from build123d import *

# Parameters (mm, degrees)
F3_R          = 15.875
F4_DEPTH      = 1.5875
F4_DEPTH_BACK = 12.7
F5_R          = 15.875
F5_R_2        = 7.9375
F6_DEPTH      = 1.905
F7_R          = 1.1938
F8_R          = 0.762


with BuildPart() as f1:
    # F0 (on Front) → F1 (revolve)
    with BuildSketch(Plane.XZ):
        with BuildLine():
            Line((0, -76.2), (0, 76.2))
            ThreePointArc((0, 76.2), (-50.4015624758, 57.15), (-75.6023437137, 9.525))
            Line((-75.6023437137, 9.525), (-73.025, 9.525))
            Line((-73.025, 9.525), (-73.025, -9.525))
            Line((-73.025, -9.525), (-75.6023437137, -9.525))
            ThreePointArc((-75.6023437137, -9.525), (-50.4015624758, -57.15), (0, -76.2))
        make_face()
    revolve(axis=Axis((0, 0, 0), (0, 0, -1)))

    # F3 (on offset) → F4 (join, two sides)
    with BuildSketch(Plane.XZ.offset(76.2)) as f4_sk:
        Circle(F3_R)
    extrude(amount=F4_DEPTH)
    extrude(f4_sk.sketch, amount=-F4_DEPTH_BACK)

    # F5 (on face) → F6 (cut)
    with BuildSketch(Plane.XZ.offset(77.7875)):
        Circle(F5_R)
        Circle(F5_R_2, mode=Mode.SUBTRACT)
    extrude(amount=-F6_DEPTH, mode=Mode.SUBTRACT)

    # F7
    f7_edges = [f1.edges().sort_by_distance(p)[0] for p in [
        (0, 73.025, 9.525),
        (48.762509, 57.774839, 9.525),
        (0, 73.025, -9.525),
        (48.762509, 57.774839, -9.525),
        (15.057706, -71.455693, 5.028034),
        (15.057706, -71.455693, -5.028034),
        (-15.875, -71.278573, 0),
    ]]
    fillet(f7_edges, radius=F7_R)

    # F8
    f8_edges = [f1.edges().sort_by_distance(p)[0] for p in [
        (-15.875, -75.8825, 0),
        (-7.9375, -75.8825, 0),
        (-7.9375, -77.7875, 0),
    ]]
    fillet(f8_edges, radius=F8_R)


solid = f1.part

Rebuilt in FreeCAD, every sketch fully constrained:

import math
import FreeCAD as App
import Part
import Sketcher
from FreeCAD import Vector
Q = App.Units.Quantity


def edges_at(feature, points):
    """Names of the edges that pass closest to the given points."""
    edges = feature.Shape.Edges
    near = lambda p: min(range(len(edges)), key=lambda i: edges[i].distToShape(Part.Vertex(*p))[0])
    return sorted({f"Edge{near(p) + 1}" for p in points})

doc = App.newDocument("Part")
body = doc.addObject("PartDesign::Body", "Body")

# Sketch on XZ plane
sketch1 = doc.addObject("Sketcher::SketchObject", "Sketch")
body.addObject(sketch1)
sketch1.AttachmentSupport = (doc.XZ_Plane, [""])
sketch1.MapMode = "FlatFace"
sketch1.addGeometry([
    Part.LineSegment(Vector(0, -76.2, 0), Vector(0, 76.2, 0)),  # 0
    Part.ArcOfCircle(Part.Circle(Vector(0, 0, 0), Vector(0, 0, 1), 76.2), math.radians(90), math.radians(173)),  # 1
    Part.LineSegment(Vector(-75.6, 9.5, 0), Vector(-73, 9.5, 0)),  # 2
    Part.LineSegment(Vector(-73, 9.5, 0), Vector(-73, -9.5, 0)),  # 3
    Part.LineSegment(Vector(-73, -9.5, 0), Vector(-75.6, -9.5, 0)),  # 4
    Part.ArcOfCircle(Part.Circle(Vector(0, 0, 0), Vector(0, 0, 1), 76.2), math.radians(-173), math.radians(-90)),  # 5
], False)
sketch1.addConstraint([
    Sketcher.Constraint("Coincident", 0, 2, 1, 1),
    Sketcher.Constraint("Coincident", 1, 2, 2, 1),
    Sketcher.Constraint("Coincident", 2, 2, 3, 1),
    Sketcher.Constraint("Coincident", 3, 2, 4, 1),
    Sketcher.Constraint("Coincident", 4, 2, 5, 1),
    Sketcher.Constraint("Coincident", 5, 2, 0, 1),
    Sketcher.Constraint("Vertical", 0),
    Sketcher.Constraint("Horizontal", 2),
    Sketcher.Constraint("Vertical", 3),
    Sketcher.Constraint("Horizontal", 4),
    Sketcher.Constraint("Coincident", 1, 3, -1, 1),
    Sketcher.Constraint("Coincident", 5, 3, -1, 1),
    Sketcher.Constraint("Equal", 1, 5),
    Sketcher.Constraint("PointOnObject", 0, 2, -2),
    Sketcher.Constraint("Vertical", 1, 2, 4, 2),
    Sketcher.Constraint("Radius", 1, Q("3 in")),
    Sketcher.Constraint("DistanceY", 3, 2, 3, 1, Q("0.75 in")),
    Sketcher.Constraint("DistanceX", 2, 2, -1, 1, Q("2.875 in")),
])
revolution = doc.addObject("PartDesign::Revolution", "Revolution")
body.addObject(revolution)
revolution.Profile = sketch1
revolution.ReferenceAxis = (sketch1, ["V_Axis"])
revolution.Angle = 360

# Sketch on XZ plane
sketch2 = doc.addObject("Sketcher::SketchObject", "Sketch001")
body.addObject(sketch2)
sketch2.AttachmentSupport = (doc.XZ_Plane, [""])
sketch2.MapMode = "FlatFace"
sketch2.AttachmentOffset = App.Placement(Vector(0, 0, 3 * 25.4), App.Rotation())
sketch2.addGeometry(Part.Circle(Vector(0, 0, 0), Vector(0, 0, 1), 16), False)
sketch2.addConstraint([
    Sketcher.Constraint("Coincident", 0, 3, -1, 1),
    Sketcher.Constraint("Diameter", 0, Q("1.25 in")),
])
pad1 = doc.addObject("PartDesign::Pad", "Pad")
body.addObject(pad1)
pad1.Profile = sketch2
pad1.Type = "TwoLengths"
pad1.Length = Q("0.0625 in")
pad1.Length2 = Q("0.5 in")

# Sketch on XZ plane
sketch3 = doc.addObject("Sketcher::SketchObject", "Sketch002")
body.addObject(sketch3)
sketch3.AttachmentSupport = (doc.XZ_Plane, [""])
sketch3.MapMode = "FlatFace"
sketch3.AttachmentOffset = App.Placement(Vector(0, 0, 3.0625 * 25.4), App.Rotation())
sketch3.addGeometry([
    Part.Circle(Vector(0, 0, 0), Vector(0, 0, 1), 16),
    Part.Circle(Vector(0, 0, 0), Vector(0, 0, 1), 8),
], False)
sketch3.addConstraint([
    Sketcher.Constraint("Coincident", 0, 3, -1, 1),
    Sketcher.Constraint("Coincident", 1, 3, -1, 1),
    Sketcher.Constraint("Diameter", 0, Q("1.25 in")),
    Sketcher.Constraint("Diameter", 1, Q("0.625 in")),
])
pocket1 = doc.addObject("PartDesign::Pocket", "Pocket")
body.addObject(pocket1)
pocket1.Profile = sketch3
pocket1.Length = Q("0.075 in")
doc.recompute()

fillet = doc.addObject("PartDesign::Fillet", "Fillet")
body.addObject(fillet)
fillet.Base = (pocket1, edges_at(pocket1, [
    (0, 73.025, 9.525),
    (48.763, 57.775, 9.525),
    (0, 73.025, -9.525),
    (48.763, 57.775, -9.525),
    (15.058, -71.456, 5.028),
    (15.058, -71.456, -5.028),
    (-15.875, -71.279, 0),
]))
fillet.Radius = Q("0.047 in")
doc.recompute()

fillet2 = doc.addObject("PartDesign::Fillet", "Fillet001")
body.addObject(fillet2)
fillet2.Base = (fillet, edges_at(fillet, [(-15.875, -75.882, 0), (-7.938, -75.882, 0), (-7.938, -77.787, 0)]))
fillet2.Radius = Q("0.03 in")

doc.recompute()
